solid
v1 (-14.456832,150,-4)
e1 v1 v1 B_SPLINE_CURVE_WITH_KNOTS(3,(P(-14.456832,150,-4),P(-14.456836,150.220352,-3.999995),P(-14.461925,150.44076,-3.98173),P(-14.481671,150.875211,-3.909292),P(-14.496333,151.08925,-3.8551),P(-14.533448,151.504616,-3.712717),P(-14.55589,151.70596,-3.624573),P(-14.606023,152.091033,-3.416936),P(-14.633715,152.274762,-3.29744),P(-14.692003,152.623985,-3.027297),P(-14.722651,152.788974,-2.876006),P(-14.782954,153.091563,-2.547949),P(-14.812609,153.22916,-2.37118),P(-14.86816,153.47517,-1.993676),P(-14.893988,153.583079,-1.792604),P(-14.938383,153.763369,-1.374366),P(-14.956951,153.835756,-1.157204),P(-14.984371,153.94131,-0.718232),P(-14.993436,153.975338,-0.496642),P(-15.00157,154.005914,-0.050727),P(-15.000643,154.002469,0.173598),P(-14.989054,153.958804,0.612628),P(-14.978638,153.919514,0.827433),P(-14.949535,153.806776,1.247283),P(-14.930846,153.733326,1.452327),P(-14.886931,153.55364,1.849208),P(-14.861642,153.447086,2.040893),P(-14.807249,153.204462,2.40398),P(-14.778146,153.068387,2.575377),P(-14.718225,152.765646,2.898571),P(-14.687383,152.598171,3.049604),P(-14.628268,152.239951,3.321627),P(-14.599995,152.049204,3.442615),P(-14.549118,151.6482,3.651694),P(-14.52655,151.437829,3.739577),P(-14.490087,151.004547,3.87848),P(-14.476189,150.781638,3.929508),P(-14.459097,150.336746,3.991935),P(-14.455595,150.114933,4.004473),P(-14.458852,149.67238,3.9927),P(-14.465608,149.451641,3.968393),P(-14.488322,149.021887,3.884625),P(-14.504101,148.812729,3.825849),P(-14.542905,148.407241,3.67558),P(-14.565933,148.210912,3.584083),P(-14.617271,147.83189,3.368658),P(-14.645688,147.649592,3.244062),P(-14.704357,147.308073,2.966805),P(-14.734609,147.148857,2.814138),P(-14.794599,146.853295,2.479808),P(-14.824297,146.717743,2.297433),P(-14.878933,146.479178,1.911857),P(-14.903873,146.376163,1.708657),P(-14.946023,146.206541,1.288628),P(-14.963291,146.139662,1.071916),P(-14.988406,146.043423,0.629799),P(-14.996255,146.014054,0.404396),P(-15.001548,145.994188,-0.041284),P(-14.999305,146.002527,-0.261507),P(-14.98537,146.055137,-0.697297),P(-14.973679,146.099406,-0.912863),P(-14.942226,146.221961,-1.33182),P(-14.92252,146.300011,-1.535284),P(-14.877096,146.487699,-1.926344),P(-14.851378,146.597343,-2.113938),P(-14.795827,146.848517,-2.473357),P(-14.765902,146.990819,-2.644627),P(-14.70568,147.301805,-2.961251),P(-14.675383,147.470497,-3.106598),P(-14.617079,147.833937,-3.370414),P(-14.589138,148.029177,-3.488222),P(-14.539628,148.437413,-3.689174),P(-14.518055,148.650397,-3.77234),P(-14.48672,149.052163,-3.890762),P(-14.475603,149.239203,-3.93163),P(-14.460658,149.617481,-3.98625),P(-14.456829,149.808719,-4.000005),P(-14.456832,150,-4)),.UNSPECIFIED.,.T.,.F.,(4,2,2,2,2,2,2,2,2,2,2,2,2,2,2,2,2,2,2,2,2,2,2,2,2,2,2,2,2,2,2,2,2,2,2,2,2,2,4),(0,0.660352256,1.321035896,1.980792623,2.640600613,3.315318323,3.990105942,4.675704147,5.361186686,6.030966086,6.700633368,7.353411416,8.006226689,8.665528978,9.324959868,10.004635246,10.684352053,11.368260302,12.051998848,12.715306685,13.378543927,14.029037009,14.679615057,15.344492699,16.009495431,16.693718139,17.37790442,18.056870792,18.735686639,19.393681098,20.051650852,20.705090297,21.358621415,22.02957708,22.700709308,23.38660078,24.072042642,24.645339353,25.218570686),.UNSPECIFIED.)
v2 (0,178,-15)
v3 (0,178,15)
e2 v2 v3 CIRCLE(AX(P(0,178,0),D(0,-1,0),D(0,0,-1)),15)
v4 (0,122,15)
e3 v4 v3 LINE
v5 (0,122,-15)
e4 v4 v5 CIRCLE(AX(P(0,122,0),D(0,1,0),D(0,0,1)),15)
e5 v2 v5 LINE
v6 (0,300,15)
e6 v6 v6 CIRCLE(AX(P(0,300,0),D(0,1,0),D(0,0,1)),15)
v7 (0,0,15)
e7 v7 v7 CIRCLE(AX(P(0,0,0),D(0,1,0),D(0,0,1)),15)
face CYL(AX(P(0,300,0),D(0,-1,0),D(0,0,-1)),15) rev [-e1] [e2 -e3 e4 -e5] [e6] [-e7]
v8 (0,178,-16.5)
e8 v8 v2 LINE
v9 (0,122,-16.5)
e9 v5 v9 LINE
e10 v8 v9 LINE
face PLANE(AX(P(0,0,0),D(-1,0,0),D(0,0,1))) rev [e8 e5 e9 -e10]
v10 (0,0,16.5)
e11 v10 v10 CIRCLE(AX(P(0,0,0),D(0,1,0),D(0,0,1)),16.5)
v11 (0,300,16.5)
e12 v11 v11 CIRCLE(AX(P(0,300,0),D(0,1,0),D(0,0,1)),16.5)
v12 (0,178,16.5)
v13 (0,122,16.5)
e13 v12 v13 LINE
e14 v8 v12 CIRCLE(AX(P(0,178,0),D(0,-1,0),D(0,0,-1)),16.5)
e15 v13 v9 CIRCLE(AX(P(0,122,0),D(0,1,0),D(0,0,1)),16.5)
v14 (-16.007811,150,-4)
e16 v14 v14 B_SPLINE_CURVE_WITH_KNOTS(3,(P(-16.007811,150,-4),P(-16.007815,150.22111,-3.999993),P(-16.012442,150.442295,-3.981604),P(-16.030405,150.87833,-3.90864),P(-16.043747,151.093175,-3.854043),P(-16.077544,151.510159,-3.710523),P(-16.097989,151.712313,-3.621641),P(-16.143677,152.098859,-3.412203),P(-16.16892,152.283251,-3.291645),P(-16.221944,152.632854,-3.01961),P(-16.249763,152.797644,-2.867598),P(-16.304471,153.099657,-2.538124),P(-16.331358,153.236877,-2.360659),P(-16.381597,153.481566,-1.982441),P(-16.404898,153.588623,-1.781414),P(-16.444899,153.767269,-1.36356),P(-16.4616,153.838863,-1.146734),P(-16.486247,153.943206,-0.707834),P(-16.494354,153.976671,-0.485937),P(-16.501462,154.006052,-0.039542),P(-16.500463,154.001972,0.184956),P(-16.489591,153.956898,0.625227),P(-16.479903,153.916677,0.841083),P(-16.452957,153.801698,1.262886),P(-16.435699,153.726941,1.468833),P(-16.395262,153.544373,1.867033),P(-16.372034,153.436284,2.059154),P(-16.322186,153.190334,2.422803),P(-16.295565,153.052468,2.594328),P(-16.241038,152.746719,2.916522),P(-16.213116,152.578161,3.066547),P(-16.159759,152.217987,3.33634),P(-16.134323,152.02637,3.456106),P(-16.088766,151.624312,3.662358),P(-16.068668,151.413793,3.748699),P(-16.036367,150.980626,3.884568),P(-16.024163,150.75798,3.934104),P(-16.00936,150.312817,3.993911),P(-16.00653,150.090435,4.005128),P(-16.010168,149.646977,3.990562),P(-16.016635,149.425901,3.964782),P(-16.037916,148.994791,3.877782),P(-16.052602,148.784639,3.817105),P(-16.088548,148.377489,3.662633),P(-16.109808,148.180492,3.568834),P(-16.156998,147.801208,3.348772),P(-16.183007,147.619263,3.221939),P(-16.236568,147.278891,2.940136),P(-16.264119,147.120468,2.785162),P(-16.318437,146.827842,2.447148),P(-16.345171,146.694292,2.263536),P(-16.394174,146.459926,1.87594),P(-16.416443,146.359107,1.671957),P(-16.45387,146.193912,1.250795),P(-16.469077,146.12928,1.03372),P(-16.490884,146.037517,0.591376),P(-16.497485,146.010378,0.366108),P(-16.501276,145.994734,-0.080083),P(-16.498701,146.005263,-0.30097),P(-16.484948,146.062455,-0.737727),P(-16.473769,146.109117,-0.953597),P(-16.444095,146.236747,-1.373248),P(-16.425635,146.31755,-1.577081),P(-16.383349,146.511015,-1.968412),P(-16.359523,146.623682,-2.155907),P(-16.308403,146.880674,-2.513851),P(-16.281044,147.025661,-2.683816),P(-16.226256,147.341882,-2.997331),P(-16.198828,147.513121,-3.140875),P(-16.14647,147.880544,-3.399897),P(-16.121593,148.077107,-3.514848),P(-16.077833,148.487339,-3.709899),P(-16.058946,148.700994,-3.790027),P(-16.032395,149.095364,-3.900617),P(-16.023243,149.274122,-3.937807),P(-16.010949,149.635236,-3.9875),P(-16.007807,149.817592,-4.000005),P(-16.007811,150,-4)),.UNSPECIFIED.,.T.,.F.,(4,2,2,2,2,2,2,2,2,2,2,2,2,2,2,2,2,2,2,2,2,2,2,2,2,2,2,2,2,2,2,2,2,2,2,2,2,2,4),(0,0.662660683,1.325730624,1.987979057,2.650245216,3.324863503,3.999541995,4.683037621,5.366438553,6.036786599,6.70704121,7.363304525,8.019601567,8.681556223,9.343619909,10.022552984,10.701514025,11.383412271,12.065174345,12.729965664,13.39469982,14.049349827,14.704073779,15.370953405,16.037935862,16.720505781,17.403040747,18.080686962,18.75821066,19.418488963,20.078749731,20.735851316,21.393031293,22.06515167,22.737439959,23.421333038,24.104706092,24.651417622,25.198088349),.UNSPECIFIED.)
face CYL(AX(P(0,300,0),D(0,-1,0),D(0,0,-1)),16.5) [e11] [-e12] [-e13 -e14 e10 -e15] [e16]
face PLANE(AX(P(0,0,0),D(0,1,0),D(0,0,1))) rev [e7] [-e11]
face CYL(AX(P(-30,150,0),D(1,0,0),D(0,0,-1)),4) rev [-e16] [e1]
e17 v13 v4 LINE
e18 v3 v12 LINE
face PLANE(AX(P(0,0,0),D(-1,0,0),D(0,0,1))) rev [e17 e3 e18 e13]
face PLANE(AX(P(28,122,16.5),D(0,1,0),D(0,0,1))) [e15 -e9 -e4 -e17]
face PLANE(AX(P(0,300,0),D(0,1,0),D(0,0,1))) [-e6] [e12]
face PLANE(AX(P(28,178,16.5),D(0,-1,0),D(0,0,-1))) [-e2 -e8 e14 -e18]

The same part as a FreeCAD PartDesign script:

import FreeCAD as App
import Part
import Sketcher
Q = App.Units.Quantity


def add_polygon(sketch, points):
    """Adds a closed chain of lines whose ends are joined by coincident constraints."""
    first, n = sketch.GeometryCount, len(points)
    for a, b in zip(points, points[1:] + points[:1]):
        sketch.addGeometry(Part.LineSegment(App.Vector(*a, 0), App.Vector(*b, 0)), False)
    for i in range(n):
        sketch.addConstraint(Sketcher.Constraint("Coincident", first + i, 2, first + (i + 1) % n, 1))

doc = App.newDocument("Part")
params = doc.addObject("Spreadsheet::Sheet", "Params")
for row, (alias, value) in enumerate([
    ("sketch1_diameter", "33 mm"),
    ("sketch1_diameter2", "30 mm"),
    ("pad1_length", "300 mm"),
    ("sketch2_width", "56 mm"),
    ("pocket1_length", "28 mm"),
    ("sketch3_diameter", "8 mm"),
    ("pocket2_length", "30 mm"),
], start=1):
    params.set(f"A{row}", alias)
    params.set(f"B{row}", "=" + value)
    params.setAlias(f"B{row}", alias)

body = doc.addObject("PartDesign::Body", "Body")

# Sketch on XZ plane
sketch1 = body.newObject("Sketcher::SketchObject", "Sketch")
sketch1.AttachmentSupport = (doc.getObject("XZ_Plane"), [""])
sketch1.MapMode = "FlatFace"
sketch1.addGeometry(Part.Circle(App.Vector(0, 0, 0), App.Vector(0, 0, 1), 16.5), False)
sketch1.addGeometry(Part.Circle(App.Vector(0, 0, 0), App.Vector(0, 0, 1), 15), False)
sketch1.addConstraint(Sketcher.Constraint("Coincident", 0, 3, -1, 1))
sketch1.addConstraint(Sketcher.Constraint("Coincident", 1, 3, -1, 1))
sketch1.addConstraint(Sketcher.Constraint("Diameter", 0, Q("33 mm")))
sketch1.addConstraint(Sketcher.Constraint("Diameter", 1, Q("30 mm")))
sketch1.setExpression("Constraints[2]", "Params.sketch1_diameter")
sketch1.setExpression("Constraints[3]", "Params.sketch1_diameter2")
pad1 = body.newObject("PartDesign::Pad", "Pad")
pad1.Profile = sketch1
pad1.setExpression("Length", "Params.pad1_length")
pad1.Reversed = True

# Sketch on YZ plane
sketch2 = body.newObject("Sketcher::SketchObject", "Sketch001")
sketch2.AttachmentSupport = (doc.getObject("YZ_Plane"), [""])
sketch2.MapMode = "FlatFace"
add_polygon(sketch2, [(122, -21.277567), (178, -21.277567), (178, 16.5), (122, 16.5)])  # lines 0-3
sketch2.addConstraint(Sketcher.Constraint("Horizontal", 0))
sketch2.addConstraint(Sketcher.Constraint("Vertical", 1))
sketch2.addConstraint(Sketcher.Constraint("Horizontal", 2))
sketch2.addConstraint(Sketcher.Constraint("Vertical", 3))
sketch2.addConstraint(Sketcher.Constraint("DistanceX", 0, 1, 0, 2, Q("56 mm")))
sketch2.addConstraint(Sketcher.Constraint("DistanceX", -1, 1, 0, 2, Q("178 mm")))
sketch2.addConstraint(Sketcher.Constraint("DistanceY", -1, 1, 1, 2, Q("16.5 mm")))
sketch2.addConstraint(Sketcher.Constraint("DistanceY", 1, 1, 1, 2, Q("37.777567 mm")))
sketch2.setExpression("Constraints[8]", "Params.sketch2_width")
pocket1 = body.newObject("PartDesign::Pocket", "Pocket")
pocket1.Profile = sketch2
pocket1.setExpression("Length", "Params.pocket1_length")
pocket1.Reversed = True

# Sketch on YZ plane
sketch3 = body.newObject("Sketcher::SketchObject", "Sketch002")
sketch3.AttachmentSupport = (doc.getObject("YZ_Plane"), [""])
sketch3.MapMode = "FlatFace"
sketch3.addGeometry(Part.Circle(App.Vector(150, 0, 0), App.Vector(0, 0, 1), 4), False)
sketch3.addConstraint(Sketcher.Constraint("PointOnObject", 0, 3, -1))
sketch3.addConstraint(Sketcher.Constraint("Diameter", 0, Q("8 mm")))
sketch3.addConstraint(Sketcher.Constraint("DistanceX", -1, 1, 0, 3, Q("150 mm")))
sketch3.setExpression("Constraints[1]", "Params.sketch3_diameter")
pocket2 = body.newObject("PartDesign::Pocket", "Pocket001")
pocket2.Profile = sketch3
pocket2.setExpression("Length", "Params.pocket2_length")

doc.recompute()
